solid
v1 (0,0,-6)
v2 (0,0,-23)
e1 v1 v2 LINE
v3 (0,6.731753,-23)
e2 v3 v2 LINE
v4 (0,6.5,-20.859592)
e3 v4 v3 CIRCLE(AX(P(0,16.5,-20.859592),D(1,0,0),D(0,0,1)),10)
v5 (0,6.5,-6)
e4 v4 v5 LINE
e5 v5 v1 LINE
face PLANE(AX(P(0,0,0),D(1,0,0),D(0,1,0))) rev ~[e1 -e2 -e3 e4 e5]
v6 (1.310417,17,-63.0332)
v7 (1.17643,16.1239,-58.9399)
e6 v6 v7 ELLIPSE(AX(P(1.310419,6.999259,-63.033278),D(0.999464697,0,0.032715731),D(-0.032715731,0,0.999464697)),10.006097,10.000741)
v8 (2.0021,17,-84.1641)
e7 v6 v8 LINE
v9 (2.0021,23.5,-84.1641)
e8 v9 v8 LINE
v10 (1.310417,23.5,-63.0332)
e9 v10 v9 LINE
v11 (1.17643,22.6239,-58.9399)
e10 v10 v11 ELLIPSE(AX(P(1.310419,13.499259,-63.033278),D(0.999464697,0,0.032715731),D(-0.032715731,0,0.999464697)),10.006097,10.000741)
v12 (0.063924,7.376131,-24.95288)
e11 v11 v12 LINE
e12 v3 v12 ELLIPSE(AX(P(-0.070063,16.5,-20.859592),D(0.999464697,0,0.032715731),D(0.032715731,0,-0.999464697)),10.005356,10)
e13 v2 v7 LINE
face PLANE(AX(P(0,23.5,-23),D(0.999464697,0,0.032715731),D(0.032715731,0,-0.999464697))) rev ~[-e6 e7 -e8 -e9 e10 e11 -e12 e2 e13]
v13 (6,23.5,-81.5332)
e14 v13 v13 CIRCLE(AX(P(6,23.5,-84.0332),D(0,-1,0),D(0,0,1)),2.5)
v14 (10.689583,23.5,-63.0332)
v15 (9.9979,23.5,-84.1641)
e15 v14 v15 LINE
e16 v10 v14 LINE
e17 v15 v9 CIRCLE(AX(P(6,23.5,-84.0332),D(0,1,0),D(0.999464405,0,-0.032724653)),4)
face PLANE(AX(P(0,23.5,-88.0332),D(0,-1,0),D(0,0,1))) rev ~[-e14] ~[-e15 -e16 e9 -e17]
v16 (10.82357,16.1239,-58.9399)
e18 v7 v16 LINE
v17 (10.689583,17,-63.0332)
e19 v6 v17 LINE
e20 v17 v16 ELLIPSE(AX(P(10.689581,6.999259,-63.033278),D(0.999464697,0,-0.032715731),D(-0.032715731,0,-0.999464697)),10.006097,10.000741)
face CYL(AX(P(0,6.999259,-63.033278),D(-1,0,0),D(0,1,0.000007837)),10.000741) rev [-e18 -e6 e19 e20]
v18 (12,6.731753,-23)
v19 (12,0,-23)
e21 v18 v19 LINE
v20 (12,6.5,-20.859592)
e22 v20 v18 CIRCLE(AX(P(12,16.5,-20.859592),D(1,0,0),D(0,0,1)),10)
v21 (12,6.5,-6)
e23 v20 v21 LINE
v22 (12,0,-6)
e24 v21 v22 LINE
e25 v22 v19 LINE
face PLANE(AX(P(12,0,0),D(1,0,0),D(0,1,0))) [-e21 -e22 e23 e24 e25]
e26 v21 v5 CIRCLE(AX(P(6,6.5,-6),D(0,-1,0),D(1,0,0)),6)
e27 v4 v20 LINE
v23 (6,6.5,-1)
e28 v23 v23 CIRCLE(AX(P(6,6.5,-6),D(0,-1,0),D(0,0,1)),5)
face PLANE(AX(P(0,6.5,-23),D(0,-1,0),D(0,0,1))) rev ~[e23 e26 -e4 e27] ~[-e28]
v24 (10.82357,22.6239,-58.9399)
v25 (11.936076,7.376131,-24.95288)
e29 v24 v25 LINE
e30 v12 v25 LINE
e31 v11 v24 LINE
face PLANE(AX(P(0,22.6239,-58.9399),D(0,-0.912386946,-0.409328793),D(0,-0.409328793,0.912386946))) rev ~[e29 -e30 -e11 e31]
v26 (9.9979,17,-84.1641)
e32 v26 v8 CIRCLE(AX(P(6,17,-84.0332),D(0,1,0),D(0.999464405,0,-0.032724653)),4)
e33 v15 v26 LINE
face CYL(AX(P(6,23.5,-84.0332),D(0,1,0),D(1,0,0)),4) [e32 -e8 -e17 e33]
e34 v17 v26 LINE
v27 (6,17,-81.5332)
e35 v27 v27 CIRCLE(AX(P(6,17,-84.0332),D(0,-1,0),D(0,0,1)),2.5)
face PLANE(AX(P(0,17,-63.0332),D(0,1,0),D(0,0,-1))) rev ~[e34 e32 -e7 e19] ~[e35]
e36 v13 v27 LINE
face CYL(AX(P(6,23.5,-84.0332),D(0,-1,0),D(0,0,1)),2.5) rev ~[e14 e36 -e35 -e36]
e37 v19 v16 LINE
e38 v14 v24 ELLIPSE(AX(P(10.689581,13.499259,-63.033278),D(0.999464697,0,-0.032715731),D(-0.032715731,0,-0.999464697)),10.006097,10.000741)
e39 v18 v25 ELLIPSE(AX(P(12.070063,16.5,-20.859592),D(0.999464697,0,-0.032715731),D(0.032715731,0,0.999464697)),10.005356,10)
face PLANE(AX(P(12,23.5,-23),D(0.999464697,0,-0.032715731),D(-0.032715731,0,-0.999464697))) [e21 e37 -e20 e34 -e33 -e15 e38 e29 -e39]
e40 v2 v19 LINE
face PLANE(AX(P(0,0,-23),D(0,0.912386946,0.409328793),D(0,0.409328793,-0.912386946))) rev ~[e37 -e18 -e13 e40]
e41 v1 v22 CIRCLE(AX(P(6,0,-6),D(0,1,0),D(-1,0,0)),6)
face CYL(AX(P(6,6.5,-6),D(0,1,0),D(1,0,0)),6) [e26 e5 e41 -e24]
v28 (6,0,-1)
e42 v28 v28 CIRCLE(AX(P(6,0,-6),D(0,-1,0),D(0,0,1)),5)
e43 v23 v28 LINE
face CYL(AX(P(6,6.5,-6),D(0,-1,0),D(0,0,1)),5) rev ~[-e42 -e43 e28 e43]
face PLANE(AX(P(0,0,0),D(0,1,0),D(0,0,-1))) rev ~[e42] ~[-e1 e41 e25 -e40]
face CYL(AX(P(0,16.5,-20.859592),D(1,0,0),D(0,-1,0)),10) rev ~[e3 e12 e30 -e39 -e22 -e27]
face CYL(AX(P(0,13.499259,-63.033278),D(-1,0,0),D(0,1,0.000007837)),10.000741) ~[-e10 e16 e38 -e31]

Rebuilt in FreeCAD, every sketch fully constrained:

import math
import FreeCAD as App
import Part
import Sketcher
from FreeCAD import Vector


def edges_at(feature, points):
    """Names of the edges that pass closest to the given points."""
    edges = feature.Shape.Edges
    near = lambda p: min(range(len(edges)), key=lambda i: edges[i].distToShape(Part.Vertex(*p))[0])
    return sorted({f"Edge{near(p) + 1}" for p in points})

doc = App.newDocument("Part")
params = doc.addObject("Spreadsheet::Sheet", "Params")
for row, (alias, value) in enumerate([
    ("sketch1_radius", "10 mm"),
    ("sketch1_height", "23 mm"),
    ("sketch1_height2", "25 mm"),
    ("sketch1_width", "6.5 mm"),
    ("pad1_length", "12 mm"),
    ("sketch2_radius", "6 mm"),
    ("pocket1_length", "12 mm"),
    ("sketch3_radius", "4 mm"),
    ("sketch3_width", "6 mm"),
    ("pocket2_length", "23.5 mm"),
    ("sketch4_diameter", "10 mm"),
    ("hole_diameter", "10 mm"),
    ("sketch5_diameter", "5 mm"),
    ("hole2_diameter", "5 mm"),
    ("fillet_radius", "10 mm"),
], start=1):
    params.set(f"A{row}", alias)
    params.set(f"B{row}", "=" + value)
    params.setAlias(f"B{row}", alias)

body = doc.addObject("PartDesign::Body", "Body")

sketch1 = body.newObject("Sketcher::SketchObject", "Sketch")
sketch1.AttachmentSupport = (doc.getObject("YZ_Plane"), [""])
sketch1.MapMode = "FlatFace"
sketch1.addGeometry([
    Part.LineSegment(Vector(6.5, 0, 0), Vector(0, 0, 0)),
    Part.LineSegment(Vector(0, 0, 0), Vector(0, -23, 0)),
    Part.LineSegment(Vector(0, -23, 0), Vector(16.1, -58.9, 0)),
    Part.ArcOfCircle(Part.Circle(Vector(7, -63, 0), Vector(0, 0, 1), 10), math.radians(0), math.radians(24)),
    Part.LineSegment(Vector(17, -63, 0), Vector(17, -88, 0)),
    Part.LineSegment(Vector(17, -88, 0), Vector(23.5, -88, 0)),
    Part.LineSegment(Vector(23.5, -88, 0), Vector(23.5, -63, 0)),
    Part.ArcOfCircle(Part.Circle(Vector(13.5, -63, 0), Vector(0, 0, 1), 10), math.radians(0), math.radians(24)),
    Part.LineSegment(Vector(22.6, -58.9, 0), Vector(6.5, -23, 0)),
    Part.LineSegment(Vector(6.5, -23, 0), Vector(6.5, 0, 0)),
], False)
sketch1.addConstraint([
    Sketcher.Constraint("Coincident", 0, 2, 1, 1),
    Sketcher.Constraint("Coincident", 1, 2, 2, 1),
    Sketcher.Constraint("Tangent", 2, 2, 3, 2),
    Sketcher.Constraint("Tangent", 3, 1, 4, 1),
    Sketcher.Constraint("Coincident", 4, 2, 5, 1),
    Sketcher.Constraint("Coincident", 5, 2, 6, 1),
    Sketcher.Constraint("Tangent", 6, 2, 7, 1),
    Sketcher.Constraint("Tangent", 7, 2, 8, 1),
    Sketcher.Constraint("Coincident", 8, 2, 9, 1),
    Sketcher.Constraint("Coincident", 9, 2, 0, 1),
    Sketcher.Constraint("Horizontal", 0),
    Sketcher.Constraint("Vertical", 1),
    Sketcher.Constraint("Vertical", 4),
    Sketcher.Constraint("Horizontal", 5),
    Sketcher.Constraint("Vertical", 6),
    Sketcher.Constraint("Vertical", 9),
    Sketcher.Constraint("Coincident", 0, 2, -1, 1),
    Sketcher.Constraint("Equal", 3, 7),
    Sketcher.Constraint("Parallel", 2, 8),
    Sketcher.Constraint("Horizontal", 3, 3, 7, 3),
    Sketcher.Constraint("Horizontal", 1, 2, 8, 2),
    Sketcher.Constraint("Radius", 3, 10.0),
    Sketcher.Constraint("DistanceY", 1, 2, 1, 1, 23.0),
    Sketcher.Constraint("DistanceY", 4, 2, 4, 1, 25.0),
    Sketcher.Constraint("DistanceX", 0, 2, 0, 1, 6.5),
    Sketcher.Constraint("DistanceX", -1, 1, 3, 1, 17.0),
    Sketcher.Constraint("DistanceY", 2, 2, -1, 1, 58.94),
])
sketch1.setExpression("Constraints[21]", "Params.sketch1_radius")
sketch1.setExpression("Constraints[22]", "Params.sketch1_height")
sketch1.setExpression("Constraints[23]", "Params.sketch1_height2")
sketch1.setExpression("Constraints[24]", "Params.sketch1_width")
pad1 = body.newObject("PartDesign::Pad", "Pad")
pad1.Profile = sketch1
pad1.setExpression("Length", "Params.pad1_length")

sketch2 = body.newObject("Sketcher::SketchObject", "Sketch001")
sketch2.AttachmentSupport = (doc.getObject("XZ_Plane"), [""])
sketch2.MapMode = "FlatFace"
sketch2.AttachmentOffset = App.Placement(Vector(0, 0, -6.5), App.Rotation())
sketch2.addGeometry([
    Part.LineSegment(Vector(12, 0, 0), Vector(12, -6, 0)),
    Part.ArcOfCircle(Part.Circle(Vector(6, -6, 0), Vector(0, 0, 1), 6), math.radians(0), math.radians(90)),
    Part.LineSegment(Vector(6, 0, 0), Vector(12, 0, 0)),
    Part.ArcOfCircle(Part.Circle(Vector(6, -6, 0), Vector(0, 0, 1), 6), math.radians(90), math.radians(180)),
    Part.LineSegment(Vector(0, -6, 0), Vector(0, 0, 0)),
    Part.LineSegment(Vector(0, 0, 0), Vector(6, 0, 0)),
], False)
sketch2.addConstraint([
    Sketcher.Constraint("Tangent", 0, 2, 1, 1),
    Sketcher.Constraint("Tangent", 1, 2, 2, 1),
    Sketcher.Constraint("Coincident", 2, 2, 0, 1),
    Sketcher.Constraint("Tangent", 3, 2, 4, 1),
    Sketcher.Constraint("Coincident", 4, 2, 5, 1),
    Sketcher.Constraint("Tangent", 5, 2, 3, 1),
    Sketcher.Constraint("Vertical", 0),
    Sketcher.Constraint("Horizontal", 2),
    Sketcher.Constraint("Vertical", 4),
    Sketcher.Constraint("Horizontal", 5),
    Sketcher.Constraint("Coincident", 4, 2, -1, 1),
    Sketcher.Constraint("Coincident", 3, 3, 1, 3),
    Sketcher.Constraint("Equal", 1, 3),
    Sketcher.Constraint("Radius", 1, 6.0),
])
sketch2.setExpression("Constraints[13]", "Params.sketch2_radius")
pocket1 = body.newObject("PartDesign::Pocket", "Pocket")
pocket1.Profile = sketch2
pocket1.setExpression("Length", "Params.pocket1_length")
pocket1.Reversed = True

sketch3 = body.newObject("Sketcher::SketchObject", "Sketch002")
sketch3.AttachmentSupport = (doc.getObject("XZ_Plane"), [""])
sketch3.MapMode = "FlatFace"
sketch3.AttachmentOffset = App.Placement(Vector(0, 0, -23.5), App.Rotation())
sketch3.addGeometry([
    Part.ArcOfCircle(Part.Circle(Vector(6, -84, 0), Vector(0, 0, 1), 4), math.radians(-90), math.radians(-2)),
    Part.LineSegment(Vector(10, -84.2, 0), Vector(12, -23, 0)),
    Part.LineSegment(Vector(12, -23, 0), Vector(12, -88, 0)),
    Part.LineSegment(Vector(12, -88, 0), Vector(6, -88, 0)),
    Part.LineSegment(Vector(0, -23, 0), Vector(2, -84.2, 0)),
    Part.ArcOfCircle(Part.Circle(Vector(6, -84, 0), Vector(0, 0, 1), 4), math.radians(-178), math.radians(-90)),
    Part.LineSegment(Vector(6, -88, 0), Vector(0, -88, 0)),
    Part.LineSegment(Vector(0, -88, 0), Vector(0, -23, 0)),
], False)
sketch3.addConstraint([
    Sketcher.Constraint("Tangent", 0, 2, 1, 1),
    Sketcher.Constraint("Coincident", 1, 2, 2, 1),
    Sketcher.Constraint("Coincident", 2, 2, 3, 1),
    Sketcher.Constraint("Tangent", 3, 2, 0, 1),
    Sketcher.Constraint("Tangent", 4, 2, 5, 1),
    Sketcher.Constraint("Tangent", 5, 2, 6, 1),
    Sketcher.Constraint("Coincident", 6, 2, 7, 1),
    Sketcher.Constraint("Coincident", 7, 2, 4, 1),
    Sketcher.Constraint("Vertical", 2),
    Sketcher.Constraint("Horizontal", 3),
    Sketcher.Constraint("Horizontal", 6),
    Sketcher.Constraint("Vertical", 7),
    Sketcher.Constraint("Coincident", 5, 3, 0, 3),
    Sketcher.Constraint("Equal", 0, 5),
    Sketcher.Constraint("PointOnObject", 6, 2, -2),
    Sketcher.Constraint("Horizontal", 0, 2, 4, 2),
    Sketcher.Constraint("Horizontal", 1, 2, 7, 2),
    Sketcher.Constraint("Radius", 0, 4.0),
    Sketcher.Constraint("DistanceX", 3, 2, 3, 1, 6.0),
    Sketcher.Constraint("DistanceY", 1, 2, -1, 1, 23.0),
    Sketcher.Constraint("DistanceY", 2, 2, 2, 1, 65.0332),
])
sketch3.setExpression("Constraints[17]", "Params.sketch3_radius")
sketch3.setExpression("Constraints[18]", "Params.sketch3_width")
pocket2 = body.newObject("PartDesign::Pocket", "Pocket001")
pocket2.Profile = sketch3
pocket2.setExpression("Length", "Params.pocket2_length")
pocket2.Reversed = True

sketch4 = body.newObject("Sketcher::SketchObject", "Sketch003")
sketch4.AttachmentSupport = (doc.getObject("XZ_Plane"), [""])
sketch4.MapMode = "FlatFace"
sketch4.AttachmentOffset = App.Placement(Vector(0, 0, -6.5), App.Rotation())
sketch4.addGeometry(Part.Circle(Vector(6, -6, 0), Vector(0, 0, 1), 5), False)
sketch4.addConstraint([
    Sketcher.Constraint("Diameter", 0, 10.0),
    Sketcher.Constraint("DistanceX", -1, 1, 0, 3, 6.0),
    Sketcher.Constraint("DistanceY", 0, 3, -1, 1, 6.0),
])
sketch4.setExpression("Constraints[0]", "Params.sketch4_diameter")
doc.recompute()
hole = body.newObject("PartDesign::Hole", "Hole")
hole.Profile = sketch4
hole.ThreadType = "None"
hole.setExpression("Diameter", "Params.hole_diameter")
hole.DepthType = "ThroughAll"
hole.Reversed = True

sketch5 = body.newObject("Sketcher::SketchObject", "Sketch004")
sketch5.AttachmentSupport = (doc.getObject("XZ_Plane"), [""])
sketch5.MapMode = "FlatFace"
sketch5.AttachmentOffset = App.Placement(Vector(0, 0, -23.5), App.Rotation())
sketch5.addGeometry(Part.Circle(Vector(6, -84, 0), Vector(0, 0, 1), 2.5), False)
sketch5.addConstraint([
    Sketcher.Constraint("Diameter", 0, 5.0),
    Sketcher.Constraint("DistanceX", -1, 1, 0, 3, 6.0),
    Sketcher.Constraint("DistanceY", 0, 3, -1, 1, 84.0332),
])
sketch5.setExpression("Constraints[0]", "Params.sketch5_diameter")
doc.recompute()
hole2 = body.newObject("PartDesign::Hole", "Hole001")
hole2.Profile = sketch5
hole2.ThreadType = "None"
hole2.setExpression("Diameter", "Params.hole2_diameter")
hole2.DepthType = "ThroughAll"
hole2.Reversed = True
doc.recompute()

fillet = body.newObject("PartDesign::Fillet", "Fillet")
fillet.Base = (hole2, edges_at(hole2, [(6, 6.5, -23)]))
fillet.setExpression("Radius", "Params.fillet_radius")

doc.recompute()
